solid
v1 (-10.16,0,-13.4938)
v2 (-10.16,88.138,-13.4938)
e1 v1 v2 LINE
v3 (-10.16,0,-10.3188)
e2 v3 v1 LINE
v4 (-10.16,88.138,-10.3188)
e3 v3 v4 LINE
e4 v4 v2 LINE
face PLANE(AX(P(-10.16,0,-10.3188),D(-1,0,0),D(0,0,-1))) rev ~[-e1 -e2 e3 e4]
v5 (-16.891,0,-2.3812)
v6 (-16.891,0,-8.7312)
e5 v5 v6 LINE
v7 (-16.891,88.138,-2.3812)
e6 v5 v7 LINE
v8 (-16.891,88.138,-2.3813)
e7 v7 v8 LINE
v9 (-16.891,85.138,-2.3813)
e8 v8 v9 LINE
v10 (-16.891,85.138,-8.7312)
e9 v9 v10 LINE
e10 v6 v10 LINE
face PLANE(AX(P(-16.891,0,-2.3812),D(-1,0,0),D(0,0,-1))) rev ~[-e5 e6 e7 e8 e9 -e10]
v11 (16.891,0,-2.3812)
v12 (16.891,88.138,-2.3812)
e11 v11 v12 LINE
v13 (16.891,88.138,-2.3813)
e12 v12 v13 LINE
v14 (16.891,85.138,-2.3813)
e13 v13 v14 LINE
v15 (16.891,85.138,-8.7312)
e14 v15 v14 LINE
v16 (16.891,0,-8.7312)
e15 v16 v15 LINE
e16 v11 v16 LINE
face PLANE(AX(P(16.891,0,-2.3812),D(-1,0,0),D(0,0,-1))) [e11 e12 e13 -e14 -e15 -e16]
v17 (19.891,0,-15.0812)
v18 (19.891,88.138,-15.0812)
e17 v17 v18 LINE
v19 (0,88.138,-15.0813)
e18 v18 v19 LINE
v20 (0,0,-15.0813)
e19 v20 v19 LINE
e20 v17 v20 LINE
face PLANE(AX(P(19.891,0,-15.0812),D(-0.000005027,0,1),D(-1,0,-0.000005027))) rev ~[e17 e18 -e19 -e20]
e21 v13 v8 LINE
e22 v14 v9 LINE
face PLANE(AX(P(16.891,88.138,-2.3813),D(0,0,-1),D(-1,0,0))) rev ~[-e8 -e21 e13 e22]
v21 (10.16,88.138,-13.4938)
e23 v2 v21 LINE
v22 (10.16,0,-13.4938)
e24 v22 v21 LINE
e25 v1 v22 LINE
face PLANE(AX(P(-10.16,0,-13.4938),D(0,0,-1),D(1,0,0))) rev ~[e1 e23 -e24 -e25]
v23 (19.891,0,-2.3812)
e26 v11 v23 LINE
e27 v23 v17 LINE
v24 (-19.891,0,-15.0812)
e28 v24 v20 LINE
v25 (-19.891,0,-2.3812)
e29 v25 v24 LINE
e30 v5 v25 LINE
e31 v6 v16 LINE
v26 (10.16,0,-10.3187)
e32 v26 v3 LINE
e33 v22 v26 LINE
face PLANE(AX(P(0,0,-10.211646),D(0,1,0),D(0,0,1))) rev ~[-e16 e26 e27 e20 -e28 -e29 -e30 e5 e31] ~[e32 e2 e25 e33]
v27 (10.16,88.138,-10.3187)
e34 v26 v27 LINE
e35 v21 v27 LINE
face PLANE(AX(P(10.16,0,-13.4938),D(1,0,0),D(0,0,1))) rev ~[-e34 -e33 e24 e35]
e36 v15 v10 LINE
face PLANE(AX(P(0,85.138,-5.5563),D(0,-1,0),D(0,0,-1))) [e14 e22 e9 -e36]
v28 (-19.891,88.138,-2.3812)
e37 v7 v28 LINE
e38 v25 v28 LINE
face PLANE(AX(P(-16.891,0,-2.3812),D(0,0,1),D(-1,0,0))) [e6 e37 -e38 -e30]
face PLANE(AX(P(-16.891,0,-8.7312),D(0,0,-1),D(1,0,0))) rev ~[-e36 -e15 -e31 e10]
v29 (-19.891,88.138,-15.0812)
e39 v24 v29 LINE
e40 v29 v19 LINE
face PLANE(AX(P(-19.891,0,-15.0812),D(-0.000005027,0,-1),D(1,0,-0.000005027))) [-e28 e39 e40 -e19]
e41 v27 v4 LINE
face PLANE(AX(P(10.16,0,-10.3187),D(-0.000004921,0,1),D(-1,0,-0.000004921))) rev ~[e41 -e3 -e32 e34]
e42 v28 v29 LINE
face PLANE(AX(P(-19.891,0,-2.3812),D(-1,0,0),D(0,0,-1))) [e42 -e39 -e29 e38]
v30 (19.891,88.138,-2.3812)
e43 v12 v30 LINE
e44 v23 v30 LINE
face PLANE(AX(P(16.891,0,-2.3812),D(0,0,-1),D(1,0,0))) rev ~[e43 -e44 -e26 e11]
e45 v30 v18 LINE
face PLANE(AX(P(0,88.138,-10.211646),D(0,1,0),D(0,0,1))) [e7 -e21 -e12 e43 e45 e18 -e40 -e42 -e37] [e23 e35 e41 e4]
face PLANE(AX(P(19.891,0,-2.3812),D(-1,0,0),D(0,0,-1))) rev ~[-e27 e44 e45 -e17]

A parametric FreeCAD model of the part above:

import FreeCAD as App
import Part
import Sketcher
Q = App.Units.Quantity

doc = App.newDocument("Part")
params = doc.addObject("Spreadsheet::Sheet", "Params")
for row, (alias, value) in enumerate([
    ("sketch1_width", "0.8 in"),
    ("sketch1_height", "0.5 in"),
    ("sketch1_width2", "1.33 in"),
    ("sketch1_height2", "0.25 in"),
    ("sketch1_height3", "0.125 in"),
    ("pad1_length", "3.47 in"),
    ("sketch2_width", "1.33 in"),
    ("sketch2_height", "0.25 in"),
    ("pad2_length", "0.1181102 in"),
], start=1):
    params.set(f"A{row}", alias)
    params.set(f"B{row}", "=" + value)
    params.setAlias(f"B{row}", alias)

body = doc.addObject("PartDesign::Body", "Body")

sketch1 = doc.addObject("Sketcher::SketchObject", "Sketch")
body.addObject(sketch1)
sketch1.AttachmentSupport = (doc.XZ_Plane, [""])
sketch1.MapMode = "FlatFace"
sketch1.addGeometry([
    Part.LineSegment(App.Vector(-16.891, -8.7312, 0), App.Vector(-16.891, -2.3812, 0)),
    Part.LineSegment(App.Vector(-16.891, -2.3812, 0), App.Vector(-19.891, -2.3812, 0)),
    Part.LineSegment(App.Vector(-19.891, -2.3812, 0), App.Vector(-19.891, -15.0812, 0)),
    Part.LineSegment(App.Vector(-19.891, -15.0812, 0), App.Vector(0, -15.0813, 0)),
    Part.LineSegment(App.Vector(0, -15.0813, 0), App.Vector(19.891, -15.0812, 0)),
    Part.LineSegment(App.Vector(19.891, -15.0812, 0), App.Vector(19.891, -2.3812, 0)),
    Part.LineSegment(App.Vector(19.891, -2.3812, 0), App.Vector(16.891, -2.3812, 0)),
    Part.LineSegment(App.Vector(16.891, -2.3812, 0), App.Vector(16.891, -8.7312, 0)),
    Part.LineSegment(App.Vector(16.891, -8.7312, 0), App.Vector(-16.891, -8.7312, 0)),
    Part.LineSegment(App.Vector(10.16, -13.4938, 0), App.Vector(-10.16, -13.4938, 0)),
    Part.LineSegment(App.Vector(-10.16, -13.4938, 0), App.Vector(-10.16, -10.3188, 0)),
    Part.LineSegment(App.Vector(-10.16, -10.3188, 0), App.Vector(10.16, -10.3187, 0)),
    Part.LineSegment(App.Vector(10.16, -10.3187, 0), App.Vector(10.16, -13.4938, 0)),
], False)
sketch1.addConstraint([
    Sketcher.Constraint("Coincident", 0, 2, 1, 1),
    Sketcher.Constraint("Coincident", 1, 2, 2, 1),
    Sketcher.Constraint("Coincident", 2, 2, 3, 1),
    Sketcher.Constraint("Coincident", 3, 2, 4, 1),
    Sketcher.Constraint("Coincident", 4, 2, 5, 1),
    Sketcher.Constraint("Coincident", 5, 2, 6, 1),
    Sketcher.Constraint("Coincident", 6, 2, 7, 1),
    Sketcher.Constraint("Coincident", 7, 2, 8, 1),
    Sketcher.Constraint("Coincident", 8, 2, 0, 1),
    Sketcher.Constraint("Coincident", 9, 2, 10, 1),
    Sketcher.Constraint("Coincident", 10, 2, 11, 1),
    Sketcher.Constraint("Coincident", 11, 2, 12, 1),
    Sketcher.Constraint("Coincident", 12, 2, 9, 1),
    Sketcher.Constraint("Vertical", 0),
    Sketcher.Constraint("Horizontal", 1),
    Sketcher.Constraint("Vertical", 2),
    Sketcher.Constraint("Horizontal", 3),
    Sketcher.Constraint("Horizontal", 4),
    Sketcher.Constraint("Vertical", 5),
    Sketcher.Constraint("Horizontal", 6),
    Sketcher.Constraint("Vertical", 7),
    Sketcher.Constraint("Horizontal", 8),
    Sketcher.Constraint("Horizontal", 9),
    Sketcher.Constraint("Vertical", 10),
    Sketcher.Constraint("Horizontal", 11),
    Sketcher.Constraint("Vertical", 12),
    Sketcher.Constraint("Symmetric", 1, 2, 5, 2, -2),
    Sketcher.Constraint("PointOnObject", 3, 2, -2),
    Sketcher.Constraint("Equal", 1, 6),
    Sketcher.Constraint("DistanceX", 9, 2, 9, 1, Q("0.8 in")),
    Sketcher.Constraint("DistanceY", 2, 2, 2, 1, Q("0.5 in")),
    Sketcher.Constraint("DistanceX", 8, 2, 8, 1, Q("1.33 in")),
    Sketcher.Constraint("DistanceY", 0, 1, 0, 2, Q("0.25 in")),
    Sketcher.Constraint("DistanceX", 9, 2, -1, 1, Q("0.4 in")),
    Sketcher.Constraint("DistanceY", 10, 1, 10, 2, Q("0.125 in")),
    Sketcher.Constraint("DistanceX", 1, 2, 1, 1, Q("0.1181 in")),
    Sketcher.Constraint("DistanceY", 0, 2, -1, 1, Q("0.093748 in")),
    Sketcher.Constraint("DistanceY", 9, 2, -1, 1, Q("0.531252 in")),
])
sketch1.setExpression("Constraints[29]", "Params.sketch1_width")
sketch1.setExpression("Constraints[30]", "Params.sketch1_height")
sketch1.setExpression("Constraints[31]", "Params.sketch1_width2")
sketch1.setExpression("Constraints[32]", "Params.sketch1_height2")
sketch1.setExpression("Constraints[34]", "Params.sketch1_height3")
pad1 = doc.addObject("PartDesign::Pad", "Pad")
body.addObject(pad1)
pad1.Profile = sketch1
pad1.setExpression("Length", "Params.pad1_length")
pad1.Reversed = True

sketch2 = doc.addObject("Sketcher::SketchObject", "Sketch001")
body.addObject(sketch2)
sketch2.AttachmentSupport = (doc.XZ_Plane, [""])
sketch2.MapMode = "FlatFace"
sketch2.AttachmentOffset = App.Placement(App.Vector(0, 0, -3.47 * 25.4), App.Rotation())
sketch2.addGeometry([
    Part.LineSegment(App.Vector(-16.891, -2.3813, 0), App.Vector(16.891, -2.3813, 0)),
    Part.LineSegment(App.Vector(16.891, -2.3813, 0), App.Vector(16.891, -8.7313, 0)),
    Part.LineSegment(App.Vector(16.891, -8.7313, 0), App.Vector(-16.891, -8.7313, 0)),
    Part.LineSegment(App.Vector(-16.891, -8.7313, 0), App.Vector(-16.891, -2.3813, 0)),
], False)
sketch2.addConstraint([
    Sketcher.Constraint("Coincident", 0, 2, 1, 1),
    Sketcher.Constraint("Coincident", 1, 2, 2, 1),
    Sketcher.Constraint("Coincident", 2, 2, 3, 1),
    Sketcher.Constraint("Coincident", 3, 2, 0, 1),
    Sketcher.Constraint("Horizontal", 0),
    Sketcher.Constraint("Vertical", 1),
    Sketcher.Constraint("Horizontal", 2),
    Sketcher.Constraint("Vertical", 3),
    Sketcher.Constraint("DistanceX", 0, 1, 0, 2, Q("1.33 in")),
    Sketcher.Constraint("DistanceY", 1, 2, 1, 1, Q("0.25 in")),
    Sketcher.Constraint("DistanceX", -1, 1, 0, 2, Q("0.665 in")),
    Sketcher.Constraint("DistanceY", 0, 2, -1, 1, Q("0.093752 in")),
])
sketch2.setExpression("Constraints[8]", "Params.sketch2_width")
sketch2.setExpression("Constraints[9]", "Params.sketch2_height")
pad2 = doc.addObject("PartDesign::Pad", "Pad001")
body.addObject(pad2)
pad2.Profile = sketch2
pad2.setExpression("Length", "Params.pad2_length")

doc.recompute()
